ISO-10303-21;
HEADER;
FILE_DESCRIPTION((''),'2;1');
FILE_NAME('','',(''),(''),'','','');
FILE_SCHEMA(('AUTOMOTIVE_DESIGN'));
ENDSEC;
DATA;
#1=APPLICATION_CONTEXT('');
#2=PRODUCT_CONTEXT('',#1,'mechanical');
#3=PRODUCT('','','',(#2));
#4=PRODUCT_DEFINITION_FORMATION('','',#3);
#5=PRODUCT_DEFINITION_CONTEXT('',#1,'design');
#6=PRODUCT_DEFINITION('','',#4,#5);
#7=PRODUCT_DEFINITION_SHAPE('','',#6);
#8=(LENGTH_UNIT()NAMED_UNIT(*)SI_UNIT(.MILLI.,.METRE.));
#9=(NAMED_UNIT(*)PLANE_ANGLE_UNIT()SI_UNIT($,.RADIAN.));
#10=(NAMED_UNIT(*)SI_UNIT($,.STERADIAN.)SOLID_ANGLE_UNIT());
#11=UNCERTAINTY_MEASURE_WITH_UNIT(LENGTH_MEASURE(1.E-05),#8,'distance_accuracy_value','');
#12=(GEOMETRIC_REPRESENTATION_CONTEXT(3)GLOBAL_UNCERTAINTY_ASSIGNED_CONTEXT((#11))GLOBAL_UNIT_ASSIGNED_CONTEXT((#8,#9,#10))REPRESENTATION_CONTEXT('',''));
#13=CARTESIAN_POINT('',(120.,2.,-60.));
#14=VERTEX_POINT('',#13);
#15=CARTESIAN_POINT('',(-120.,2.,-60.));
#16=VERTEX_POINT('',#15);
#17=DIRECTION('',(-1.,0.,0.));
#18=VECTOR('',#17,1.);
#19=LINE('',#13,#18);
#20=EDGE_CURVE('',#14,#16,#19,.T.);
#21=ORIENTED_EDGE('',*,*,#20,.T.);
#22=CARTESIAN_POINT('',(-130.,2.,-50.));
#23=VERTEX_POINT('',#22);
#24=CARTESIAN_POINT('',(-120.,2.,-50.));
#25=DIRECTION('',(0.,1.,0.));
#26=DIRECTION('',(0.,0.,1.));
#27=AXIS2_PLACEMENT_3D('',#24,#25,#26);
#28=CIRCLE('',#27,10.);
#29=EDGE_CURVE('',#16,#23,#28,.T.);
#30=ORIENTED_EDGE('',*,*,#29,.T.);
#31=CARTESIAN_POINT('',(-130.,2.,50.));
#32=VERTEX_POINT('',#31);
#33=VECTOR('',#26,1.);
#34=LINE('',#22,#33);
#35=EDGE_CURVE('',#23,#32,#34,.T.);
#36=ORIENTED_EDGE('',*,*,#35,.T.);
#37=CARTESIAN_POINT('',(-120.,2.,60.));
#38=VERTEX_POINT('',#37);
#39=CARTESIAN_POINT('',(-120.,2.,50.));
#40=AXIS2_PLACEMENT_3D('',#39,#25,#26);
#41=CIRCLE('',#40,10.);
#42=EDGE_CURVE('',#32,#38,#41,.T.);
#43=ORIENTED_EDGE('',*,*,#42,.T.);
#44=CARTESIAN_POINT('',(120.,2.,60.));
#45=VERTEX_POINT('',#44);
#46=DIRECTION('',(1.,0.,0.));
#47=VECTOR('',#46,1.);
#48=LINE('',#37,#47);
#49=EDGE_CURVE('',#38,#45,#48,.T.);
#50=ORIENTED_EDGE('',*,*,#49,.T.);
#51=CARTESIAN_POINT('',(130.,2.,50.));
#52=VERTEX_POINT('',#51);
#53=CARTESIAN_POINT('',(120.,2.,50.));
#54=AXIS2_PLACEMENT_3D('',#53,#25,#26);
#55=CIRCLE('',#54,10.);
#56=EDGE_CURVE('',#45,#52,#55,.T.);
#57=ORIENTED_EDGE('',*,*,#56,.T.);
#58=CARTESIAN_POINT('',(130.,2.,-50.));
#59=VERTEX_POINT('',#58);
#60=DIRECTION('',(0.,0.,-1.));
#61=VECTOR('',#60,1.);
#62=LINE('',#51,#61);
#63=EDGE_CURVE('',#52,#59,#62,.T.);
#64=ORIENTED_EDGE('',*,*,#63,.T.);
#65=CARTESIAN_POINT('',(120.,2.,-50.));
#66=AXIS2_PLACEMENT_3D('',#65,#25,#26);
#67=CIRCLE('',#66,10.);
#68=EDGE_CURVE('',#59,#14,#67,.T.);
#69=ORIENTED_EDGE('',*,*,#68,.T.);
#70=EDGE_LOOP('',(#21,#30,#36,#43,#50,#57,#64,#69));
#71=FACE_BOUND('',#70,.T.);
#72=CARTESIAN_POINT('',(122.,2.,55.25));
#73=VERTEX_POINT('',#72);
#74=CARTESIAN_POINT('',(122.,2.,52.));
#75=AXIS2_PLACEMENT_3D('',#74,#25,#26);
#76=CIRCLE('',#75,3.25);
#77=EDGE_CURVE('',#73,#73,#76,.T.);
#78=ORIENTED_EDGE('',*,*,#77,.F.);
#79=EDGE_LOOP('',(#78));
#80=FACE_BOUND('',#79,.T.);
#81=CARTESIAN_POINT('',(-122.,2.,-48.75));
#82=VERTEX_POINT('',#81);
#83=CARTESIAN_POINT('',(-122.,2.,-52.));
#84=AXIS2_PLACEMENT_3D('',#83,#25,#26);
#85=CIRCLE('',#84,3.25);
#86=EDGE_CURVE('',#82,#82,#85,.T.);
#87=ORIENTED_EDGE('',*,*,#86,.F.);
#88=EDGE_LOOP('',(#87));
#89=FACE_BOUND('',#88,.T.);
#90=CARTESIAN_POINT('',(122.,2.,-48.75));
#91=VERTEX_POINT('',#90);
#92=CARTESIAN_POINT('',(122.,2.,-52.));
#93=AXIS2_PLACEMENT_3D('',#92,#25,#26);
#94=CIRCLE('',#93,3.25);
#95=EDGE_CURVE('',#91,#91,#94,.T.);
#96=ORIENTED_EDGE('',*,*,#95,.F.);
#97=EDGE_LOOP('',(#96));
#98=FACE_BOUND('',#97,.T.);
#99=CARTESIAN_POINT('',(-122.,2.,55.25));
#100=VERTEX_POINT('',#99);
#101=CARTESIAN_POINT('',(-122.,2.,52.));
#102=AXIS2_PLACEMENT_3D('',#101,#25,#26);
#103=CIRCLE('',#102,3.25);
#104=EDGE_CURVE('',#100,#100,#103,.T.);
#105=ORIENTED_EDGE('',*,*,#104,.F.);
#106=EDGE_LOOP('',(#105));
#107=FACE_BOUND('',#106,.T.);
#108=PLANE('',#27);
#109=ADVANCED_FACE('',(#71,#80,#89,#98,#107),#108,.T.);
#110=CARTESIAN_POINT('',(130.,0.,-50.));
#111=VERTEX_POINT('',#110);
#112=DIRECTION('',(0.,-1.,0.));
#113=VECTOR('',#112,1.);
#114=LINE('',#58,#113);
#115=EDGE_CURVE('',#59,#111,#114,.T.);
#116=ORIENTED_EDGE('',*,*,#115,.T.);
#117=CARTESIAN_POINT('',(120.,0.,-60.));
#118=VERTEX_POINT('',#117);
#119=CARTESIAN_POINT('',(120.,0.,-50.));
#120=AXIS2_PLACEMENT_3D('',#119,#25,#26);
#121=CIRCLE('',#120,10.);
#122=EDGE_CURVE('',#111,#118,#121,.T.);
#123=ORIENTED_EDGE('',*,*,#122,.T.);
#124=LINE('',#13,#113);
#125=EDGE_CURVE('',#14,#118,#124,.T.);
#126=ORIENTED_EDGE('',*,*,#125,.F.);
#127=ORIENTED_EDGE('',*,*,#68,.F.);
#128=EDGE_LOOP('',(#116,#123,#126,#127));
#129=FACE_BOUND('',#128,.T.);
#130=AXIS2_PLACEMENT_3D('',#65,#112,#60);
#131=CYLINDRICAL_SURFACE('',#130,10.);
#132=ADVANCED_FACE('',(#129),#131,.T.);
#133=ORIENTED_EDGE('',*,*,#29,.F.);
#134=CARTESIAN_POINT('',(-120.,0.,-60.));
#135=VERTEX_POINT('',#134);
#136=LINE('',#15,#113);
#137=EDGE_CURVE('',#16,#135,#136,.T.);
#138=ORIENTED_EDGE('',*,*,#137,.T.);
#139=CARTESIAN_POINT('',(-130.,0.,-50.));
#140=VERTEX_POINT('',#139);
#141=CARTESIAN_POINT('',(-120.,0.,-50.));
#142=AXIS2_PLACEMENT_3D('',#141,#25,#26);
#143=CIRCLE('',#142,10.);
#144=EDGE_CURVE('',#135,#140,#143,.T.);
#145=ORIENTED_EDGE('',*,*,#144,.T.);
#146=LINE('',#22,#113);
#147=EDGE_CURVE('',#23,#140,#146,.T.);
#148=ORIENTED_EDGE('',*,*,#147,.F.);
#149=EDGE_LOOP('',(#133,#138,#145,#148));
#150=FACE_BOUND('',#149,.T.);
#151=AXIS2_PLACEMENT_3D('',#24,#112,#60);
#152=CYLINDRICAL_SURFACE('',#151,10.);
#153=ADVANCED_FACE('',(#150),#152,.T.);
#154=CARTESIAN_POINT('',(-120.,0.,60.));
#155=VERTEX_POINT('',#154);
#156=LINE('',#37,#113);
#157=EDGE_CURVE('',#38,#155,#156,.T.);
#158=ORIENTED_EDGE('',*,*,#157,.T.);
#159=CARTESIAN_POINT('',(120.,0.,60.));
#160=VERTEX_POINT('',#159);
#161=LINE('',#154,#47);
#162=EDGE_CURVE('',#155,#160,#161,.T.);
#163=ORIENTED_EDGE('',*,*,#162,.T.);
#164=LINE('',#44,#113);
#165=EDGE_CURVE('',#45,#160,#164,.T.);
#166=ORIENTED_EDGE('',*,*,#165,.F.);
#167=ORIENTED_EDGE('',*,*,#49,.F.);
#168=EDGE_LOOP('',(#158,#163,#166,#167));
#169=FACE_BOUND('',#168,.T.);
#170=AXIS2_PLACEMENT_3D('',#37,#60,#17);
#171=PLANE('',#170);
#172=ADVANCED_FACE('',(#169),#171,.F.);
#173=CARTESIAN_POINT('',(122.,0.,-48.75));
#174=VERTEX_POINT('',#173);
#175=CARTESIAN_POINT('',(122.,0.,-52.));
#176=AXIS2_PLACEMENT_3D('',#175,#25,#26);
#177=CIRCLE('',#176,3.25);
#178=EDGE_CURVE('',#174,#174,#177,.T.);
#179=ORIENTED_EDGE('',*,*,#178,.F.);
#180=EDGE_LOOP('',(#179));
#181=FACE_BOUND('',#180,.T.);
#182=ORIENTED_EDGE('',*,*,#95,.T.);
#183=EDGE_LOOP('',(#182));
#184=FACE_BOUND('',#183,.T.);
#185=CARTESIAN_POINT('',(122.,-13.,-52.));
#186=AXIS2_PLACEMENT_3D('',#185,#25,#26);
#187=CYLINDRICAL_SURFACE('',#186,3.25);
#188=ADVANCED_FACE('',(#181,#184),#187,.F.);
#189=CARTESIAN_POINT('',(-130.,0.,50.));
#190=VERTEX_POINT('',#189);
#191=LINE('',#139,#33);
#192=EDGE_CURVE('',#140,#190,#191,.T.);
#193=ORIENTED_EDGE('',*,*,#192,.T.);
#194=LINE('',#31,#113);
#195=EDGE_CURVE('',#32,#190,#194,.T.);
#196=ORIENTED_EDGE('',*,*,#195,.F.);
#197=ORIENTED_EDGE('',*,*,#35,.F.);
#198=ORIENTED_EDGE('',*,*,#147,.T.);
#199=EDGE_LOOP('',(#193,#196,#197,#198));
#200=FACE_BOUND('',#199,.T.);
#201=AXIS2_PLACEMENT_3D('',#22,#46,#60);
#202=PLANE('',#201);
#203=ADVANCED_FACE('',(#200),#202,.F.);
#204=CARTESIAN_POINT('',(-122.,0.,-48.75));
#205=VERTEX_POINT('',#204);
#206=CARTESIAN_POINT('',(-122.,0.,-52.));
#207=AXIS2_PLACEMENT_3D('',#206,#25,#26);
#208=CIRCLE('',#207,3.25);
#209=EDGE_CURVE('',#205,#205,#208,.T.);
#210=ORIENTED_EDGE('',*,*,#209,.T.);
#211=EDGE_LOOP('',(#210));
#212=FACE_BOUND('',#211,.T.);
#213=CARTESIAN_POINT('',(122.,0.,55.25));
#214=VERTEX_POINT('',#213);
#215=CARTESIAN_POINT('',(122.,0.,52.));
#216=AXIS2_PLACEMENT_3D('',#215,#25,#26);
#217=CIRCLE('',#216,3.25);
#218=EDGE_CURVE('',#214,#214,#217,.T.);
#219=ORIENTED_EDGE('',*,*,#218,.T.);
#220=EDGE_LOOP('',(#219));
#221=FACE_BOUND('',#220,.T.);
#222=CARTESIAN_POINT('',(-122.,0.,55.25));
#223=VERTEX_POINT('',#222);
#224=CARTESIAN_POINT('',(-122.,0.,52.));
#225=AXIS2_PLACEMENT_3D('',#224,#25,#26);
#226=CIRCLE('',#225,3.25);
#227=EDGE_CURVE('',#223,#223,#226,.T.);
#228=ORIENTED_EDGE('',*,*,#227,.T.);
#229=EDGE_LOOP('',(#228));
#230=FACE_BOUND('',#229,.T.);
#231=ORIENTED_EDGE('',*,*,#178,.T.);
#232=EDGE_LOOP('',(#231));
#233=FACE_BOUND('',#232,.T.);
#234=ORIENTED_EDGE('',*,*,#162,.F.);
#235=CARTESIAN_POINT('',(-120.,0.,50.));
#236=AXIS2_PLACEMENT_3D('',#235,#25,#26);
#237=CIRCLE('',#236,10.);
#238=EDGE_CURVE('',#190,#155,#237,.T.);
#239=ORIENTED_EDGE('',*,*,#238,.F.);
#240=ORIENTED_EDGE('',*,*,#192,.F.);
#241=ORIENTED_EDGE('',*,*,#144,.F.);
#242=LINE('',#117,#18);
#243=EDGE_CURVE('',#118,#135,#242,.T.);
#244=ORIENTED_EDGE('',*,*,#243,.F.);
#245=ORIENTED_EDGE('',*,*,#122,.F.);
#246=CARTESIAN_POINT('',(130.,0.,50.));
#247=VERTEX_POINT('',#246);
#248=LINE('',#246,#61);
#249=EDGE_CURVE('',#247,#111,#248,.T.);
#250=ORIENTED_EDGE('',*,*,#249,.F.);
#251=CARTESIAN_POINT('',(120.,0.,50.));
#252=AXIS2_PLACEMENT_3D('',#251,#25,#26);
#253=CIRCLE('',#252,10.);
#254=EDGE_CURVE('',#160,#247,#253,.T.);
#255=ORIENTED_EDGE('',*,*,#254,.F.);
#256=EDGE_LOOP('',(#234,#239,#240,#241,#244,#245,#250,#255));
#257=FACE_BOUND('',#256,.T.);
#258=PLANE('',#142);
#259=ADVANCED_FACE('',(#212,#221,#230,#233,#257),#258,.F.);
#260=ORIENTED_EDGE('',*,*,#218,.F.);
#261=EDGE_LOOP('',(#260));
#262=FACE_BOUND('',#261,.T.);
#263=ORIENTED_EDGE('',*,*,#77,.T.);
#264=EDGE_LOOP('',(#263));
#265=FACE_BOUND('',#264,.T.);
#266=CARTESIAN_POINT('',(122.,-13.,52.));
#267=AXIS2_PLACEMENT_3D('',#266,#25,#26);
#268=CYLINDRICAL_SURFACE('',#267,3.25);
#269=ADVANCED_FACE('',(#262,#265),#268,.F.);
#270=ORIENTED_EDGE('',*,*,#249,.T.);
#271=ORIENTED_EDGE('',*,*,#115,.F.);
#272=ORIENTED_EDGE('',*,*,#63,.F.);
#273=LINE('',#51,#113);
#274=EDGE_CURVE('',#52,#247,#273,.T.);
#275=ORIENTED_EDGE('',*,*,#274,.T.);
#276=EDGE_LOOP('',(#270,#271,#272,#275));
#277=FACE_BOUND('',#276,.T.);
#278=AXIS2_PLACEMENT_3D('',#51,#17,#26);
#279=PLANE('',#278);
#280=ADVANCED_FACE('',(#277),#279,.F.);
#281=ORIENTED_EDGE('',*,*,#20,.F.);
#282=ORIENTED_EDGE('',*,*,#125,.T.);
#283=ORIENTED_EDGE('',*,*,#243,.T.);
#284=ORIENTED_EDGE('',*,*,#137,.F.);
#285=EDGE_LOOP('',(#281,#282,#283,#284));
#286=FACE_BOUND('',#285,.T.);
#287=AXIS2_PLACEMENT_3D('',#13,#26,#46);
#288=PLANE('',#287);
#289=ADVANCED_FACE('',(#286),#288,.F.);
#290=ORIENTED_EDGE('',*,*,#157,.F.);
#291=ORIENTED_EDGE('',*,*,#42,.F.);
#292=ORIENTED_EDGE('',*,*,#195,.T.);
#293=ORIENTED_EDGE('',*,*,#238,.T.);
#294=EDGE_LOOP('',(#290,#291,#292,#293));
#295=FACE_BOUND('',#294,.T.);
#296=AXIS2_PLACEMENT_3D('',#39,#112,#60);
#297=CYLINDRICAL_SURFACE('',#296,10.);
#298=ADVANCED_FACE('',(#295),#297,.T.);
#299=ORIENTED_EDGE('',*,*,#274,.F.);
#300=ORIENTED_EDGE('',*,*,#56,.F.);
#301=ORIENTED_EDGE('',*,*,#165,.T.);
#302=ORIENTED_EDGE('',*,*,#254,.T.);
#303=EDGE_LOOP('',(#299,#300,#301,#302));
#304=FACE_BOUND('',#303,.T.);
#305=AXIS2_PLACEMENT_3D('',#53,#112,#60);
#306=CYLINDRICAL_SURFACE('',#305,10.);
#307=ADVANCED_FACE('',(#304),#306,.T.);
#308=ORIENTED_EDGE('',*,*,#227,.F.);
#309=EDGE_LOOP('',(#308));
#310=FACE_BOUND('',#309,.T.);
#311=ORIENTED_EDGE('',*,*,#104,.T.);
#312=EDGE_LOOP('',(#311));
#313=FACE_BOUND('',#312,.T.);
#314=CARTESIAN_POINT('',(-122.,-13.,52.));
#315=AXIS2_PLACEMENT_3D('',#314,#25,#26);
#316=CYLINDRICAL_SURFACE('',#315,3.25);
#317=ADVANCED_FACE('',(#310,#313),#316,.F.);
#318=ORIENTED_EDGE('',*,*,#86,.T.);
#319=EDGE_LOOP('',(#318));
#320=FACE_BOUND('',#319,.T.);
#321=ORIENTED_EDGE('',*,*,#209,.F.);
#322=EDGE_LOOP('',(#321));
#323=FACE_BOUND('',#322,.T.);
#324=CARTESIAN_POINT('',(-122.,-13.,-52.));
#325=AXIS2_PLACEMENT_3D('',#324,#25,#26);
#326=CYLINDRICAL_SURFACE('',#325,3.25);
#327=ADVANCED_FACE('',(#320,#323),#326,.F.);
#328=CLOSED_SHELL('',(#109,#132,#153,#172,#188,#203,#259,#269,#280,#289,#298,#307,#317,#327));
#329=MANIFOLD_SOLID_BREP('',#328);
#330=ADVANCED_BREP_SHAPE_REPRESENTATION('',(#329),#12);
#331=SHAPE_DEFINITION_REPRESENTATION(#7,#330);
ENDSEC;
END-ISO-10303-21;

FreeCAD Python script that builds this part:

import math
import FreeCAD as App
import Part
import Sketcher

doc = App.newDocument("Part")
body = doc.addObject("PartDesign::Body", "Body")

# Sketch on XZ plane
sketch1 = doc.addObject("Sketcher::SketchObject", "Sketch")
body.addObject(sketch1)
sketch1.AttachmentSupport = (doc.XZ_Plane, [""])
sketch1.MapMode = "FlatFace"
sketch1.addGeometry(Part.LineSegment(App.Vector(-130, -50, 0), App.Vector(-130, 50, 0)), False)
sketch1.addGeometry(Part.ArcOfCircle(Part.Circle(App.Vector(-120, 50, 0), App.Vector(0, 0, 1), 10), math.radians(90), math.radians(180)), False)
sketch1.addGeometry(Part.LineSegment(App.Vector(-120, 60, 0), App.Vector(120, 60, 0)), False)
sketch1.addGeometry(Part.ArcOfCircle(Part.Circle(App.Vector(120, 50, 0), App.Vector(0, 0, 1), 10), math.radians(0), math.radians(90)), False)
sketch1.addGeometry(Part.LineSegment(App.Vector(130, 50, 0), App.Vector(130, -50, 0)), False)
sketch1.addGeometry(Part.ArcOfCircle(Part.Circle(App.Vector(120, -50, 0), App.Vector(0, 0, 1), 10), math.radians(-90), math.radians(0)), False)
sketch1.addGeometry(Part.LineSegment(App.Vector(120, -60, 0), App.Vector(-120, -60, 0)), False)
sketch1.addGeometry(Part.ArcOfCircle(Part.Circle(App.Vector(-120, -50, 0), App.Vector(0, 0, 1), 10), math.radians(180), math.radians(270)), False)
sketch1.addConstraint(Sketcher.Constraint("Tangent", 0, 2, 1, 2))
sketch1.addConstraint(Sketcher.Constraint("Tangent", 1, 1, 2, 1))
sketch1.addConstraint(Sketcher.Constraint("Tangent", 2, 2, 3, 2))
sketch1.addConstraint(Sketcher.Constraint("Tangent", 3, 1, 4, 1))
sketch1.addConstraint(Sketcher.Constraint("Tangent", 4, 2, 5, 2))
sketch1.addConstraint(Sketcher.Constraint("Tangent", 5, 1, 6, 1))
sketch1.addConstraint(Sketcher.Constraint("Tangent", 6, 2, 7, 2))
sketch1.addConstraint(Sketcher.Constraint("Tangent", 7, 1, 0, 1))
sketch1.addConstraint(Sketcher.Constraint("Vertical", 0))
sketch1.addConstraint(Sketcher.Constraint("Horizontal", 2))
sketch1.addConstraint(Sketcher.Constraint("Vertical", 4))
sketch1.addConstraint(Sketcher.Constraint("Horizontal", 6))
sketch1.addConstraint(Sketcher.Constraint("Equal", 1, 3))
sketch1.addConstraint(Sketcher.Constraint("Equal", 3, 5))
sketch1.addConstraint(Sketcher.Constraint("Equal", 5, 7))
sketch1.addConstraint(Sketcher.Constraint("Symmetric", 1, 3, 5, 3, -1, 1))
sketch1.addConstraint(Sketcher.Constraint("Radius", 1, 10.0))
sketch1.addConstraint(Sketcher.Constraint("DistanceX", 2, 1, 2, 2, 240.0))
sketch1.addConstraint(Sketcher.Constraint("DistanceY", 0, 1, 0, 2, 100.0))
pad1 = doc.addObject("PartDesign::Pad", "Pad")
body.addObject(pad1)
pad1.Profile = sketch1
pad1.Length = 2
pad1.Reversed = True

# Sketch on XZ plane
sketch2 = doc.addObject("Sketcher::SketchObject", "Sketch001")
body.addObject(sketch2)
sketch2.AttachmentSupport = (doc.XZ_Plane, [""])
sketch2.MapMode = "FlatFace"
sketch2.AttachmentOffset = App.Placement(App.Vector(0, 0, -2), App.Rotation())
sketch2.addGeometry(Part.Circle(App.Vector(-122, -52, 0), App.Vector(0, 0, 1), 3.2), False)
sketch2.addGeometry(Part.Circle(App.Vector(-122, 52, 0), App.Vector(0, 0, 1), 3.2), False)
sketch2.addGeometry(Part.Circle(App.Vector(122, 52, 0), App.Vector(0, 0, 1), 3.2), False)
sketch2.addGeometry(Part.Circle(App.Vector(122, -52, 0), App.Vector(0, 0, 1), 3.2), False)
sketch2.addConstraint(Sketcher.Constraint("Equal", 0, 1))
sketch2.addConstraint(Sketcher.Constraint("Equal", 1, 2))
sketch2.addConstraint(Sketcher.Constraint("Equal", 2, 3))
sketch2.addConstraint(Sketcher.Constraint("Symmetric", 0, 3, 2, 3, -1, 1))
sketch2.addConstraint(Sketcher.Constraint("Symmetric", 1, 3, 3, 3, -1, 1))
sketch2.addConstraint(Sketcher.Constraint("Symmetric", 1, 3, 2, 3, -2))
sketch2.addConstraint(Sketcher.Constraint("Diameter", 0, 6.5))
sketch2.addConstraint(Sketcher.Constraint("DistanceX", 0, 3, -1, 1, 122.0))
sketch2.addConstraint(Sketcher.Constraint("DistanceY", 0, 3, -1, 1, 52.0))
pocket1 = doc.addObject("PartDesign::Pocket", "Pocket")
body.addObject(pocket1)
pocket1.Profile = sketch2
pocket1.Length = 15
pocket1.Reversed = True

doc.recompute()
